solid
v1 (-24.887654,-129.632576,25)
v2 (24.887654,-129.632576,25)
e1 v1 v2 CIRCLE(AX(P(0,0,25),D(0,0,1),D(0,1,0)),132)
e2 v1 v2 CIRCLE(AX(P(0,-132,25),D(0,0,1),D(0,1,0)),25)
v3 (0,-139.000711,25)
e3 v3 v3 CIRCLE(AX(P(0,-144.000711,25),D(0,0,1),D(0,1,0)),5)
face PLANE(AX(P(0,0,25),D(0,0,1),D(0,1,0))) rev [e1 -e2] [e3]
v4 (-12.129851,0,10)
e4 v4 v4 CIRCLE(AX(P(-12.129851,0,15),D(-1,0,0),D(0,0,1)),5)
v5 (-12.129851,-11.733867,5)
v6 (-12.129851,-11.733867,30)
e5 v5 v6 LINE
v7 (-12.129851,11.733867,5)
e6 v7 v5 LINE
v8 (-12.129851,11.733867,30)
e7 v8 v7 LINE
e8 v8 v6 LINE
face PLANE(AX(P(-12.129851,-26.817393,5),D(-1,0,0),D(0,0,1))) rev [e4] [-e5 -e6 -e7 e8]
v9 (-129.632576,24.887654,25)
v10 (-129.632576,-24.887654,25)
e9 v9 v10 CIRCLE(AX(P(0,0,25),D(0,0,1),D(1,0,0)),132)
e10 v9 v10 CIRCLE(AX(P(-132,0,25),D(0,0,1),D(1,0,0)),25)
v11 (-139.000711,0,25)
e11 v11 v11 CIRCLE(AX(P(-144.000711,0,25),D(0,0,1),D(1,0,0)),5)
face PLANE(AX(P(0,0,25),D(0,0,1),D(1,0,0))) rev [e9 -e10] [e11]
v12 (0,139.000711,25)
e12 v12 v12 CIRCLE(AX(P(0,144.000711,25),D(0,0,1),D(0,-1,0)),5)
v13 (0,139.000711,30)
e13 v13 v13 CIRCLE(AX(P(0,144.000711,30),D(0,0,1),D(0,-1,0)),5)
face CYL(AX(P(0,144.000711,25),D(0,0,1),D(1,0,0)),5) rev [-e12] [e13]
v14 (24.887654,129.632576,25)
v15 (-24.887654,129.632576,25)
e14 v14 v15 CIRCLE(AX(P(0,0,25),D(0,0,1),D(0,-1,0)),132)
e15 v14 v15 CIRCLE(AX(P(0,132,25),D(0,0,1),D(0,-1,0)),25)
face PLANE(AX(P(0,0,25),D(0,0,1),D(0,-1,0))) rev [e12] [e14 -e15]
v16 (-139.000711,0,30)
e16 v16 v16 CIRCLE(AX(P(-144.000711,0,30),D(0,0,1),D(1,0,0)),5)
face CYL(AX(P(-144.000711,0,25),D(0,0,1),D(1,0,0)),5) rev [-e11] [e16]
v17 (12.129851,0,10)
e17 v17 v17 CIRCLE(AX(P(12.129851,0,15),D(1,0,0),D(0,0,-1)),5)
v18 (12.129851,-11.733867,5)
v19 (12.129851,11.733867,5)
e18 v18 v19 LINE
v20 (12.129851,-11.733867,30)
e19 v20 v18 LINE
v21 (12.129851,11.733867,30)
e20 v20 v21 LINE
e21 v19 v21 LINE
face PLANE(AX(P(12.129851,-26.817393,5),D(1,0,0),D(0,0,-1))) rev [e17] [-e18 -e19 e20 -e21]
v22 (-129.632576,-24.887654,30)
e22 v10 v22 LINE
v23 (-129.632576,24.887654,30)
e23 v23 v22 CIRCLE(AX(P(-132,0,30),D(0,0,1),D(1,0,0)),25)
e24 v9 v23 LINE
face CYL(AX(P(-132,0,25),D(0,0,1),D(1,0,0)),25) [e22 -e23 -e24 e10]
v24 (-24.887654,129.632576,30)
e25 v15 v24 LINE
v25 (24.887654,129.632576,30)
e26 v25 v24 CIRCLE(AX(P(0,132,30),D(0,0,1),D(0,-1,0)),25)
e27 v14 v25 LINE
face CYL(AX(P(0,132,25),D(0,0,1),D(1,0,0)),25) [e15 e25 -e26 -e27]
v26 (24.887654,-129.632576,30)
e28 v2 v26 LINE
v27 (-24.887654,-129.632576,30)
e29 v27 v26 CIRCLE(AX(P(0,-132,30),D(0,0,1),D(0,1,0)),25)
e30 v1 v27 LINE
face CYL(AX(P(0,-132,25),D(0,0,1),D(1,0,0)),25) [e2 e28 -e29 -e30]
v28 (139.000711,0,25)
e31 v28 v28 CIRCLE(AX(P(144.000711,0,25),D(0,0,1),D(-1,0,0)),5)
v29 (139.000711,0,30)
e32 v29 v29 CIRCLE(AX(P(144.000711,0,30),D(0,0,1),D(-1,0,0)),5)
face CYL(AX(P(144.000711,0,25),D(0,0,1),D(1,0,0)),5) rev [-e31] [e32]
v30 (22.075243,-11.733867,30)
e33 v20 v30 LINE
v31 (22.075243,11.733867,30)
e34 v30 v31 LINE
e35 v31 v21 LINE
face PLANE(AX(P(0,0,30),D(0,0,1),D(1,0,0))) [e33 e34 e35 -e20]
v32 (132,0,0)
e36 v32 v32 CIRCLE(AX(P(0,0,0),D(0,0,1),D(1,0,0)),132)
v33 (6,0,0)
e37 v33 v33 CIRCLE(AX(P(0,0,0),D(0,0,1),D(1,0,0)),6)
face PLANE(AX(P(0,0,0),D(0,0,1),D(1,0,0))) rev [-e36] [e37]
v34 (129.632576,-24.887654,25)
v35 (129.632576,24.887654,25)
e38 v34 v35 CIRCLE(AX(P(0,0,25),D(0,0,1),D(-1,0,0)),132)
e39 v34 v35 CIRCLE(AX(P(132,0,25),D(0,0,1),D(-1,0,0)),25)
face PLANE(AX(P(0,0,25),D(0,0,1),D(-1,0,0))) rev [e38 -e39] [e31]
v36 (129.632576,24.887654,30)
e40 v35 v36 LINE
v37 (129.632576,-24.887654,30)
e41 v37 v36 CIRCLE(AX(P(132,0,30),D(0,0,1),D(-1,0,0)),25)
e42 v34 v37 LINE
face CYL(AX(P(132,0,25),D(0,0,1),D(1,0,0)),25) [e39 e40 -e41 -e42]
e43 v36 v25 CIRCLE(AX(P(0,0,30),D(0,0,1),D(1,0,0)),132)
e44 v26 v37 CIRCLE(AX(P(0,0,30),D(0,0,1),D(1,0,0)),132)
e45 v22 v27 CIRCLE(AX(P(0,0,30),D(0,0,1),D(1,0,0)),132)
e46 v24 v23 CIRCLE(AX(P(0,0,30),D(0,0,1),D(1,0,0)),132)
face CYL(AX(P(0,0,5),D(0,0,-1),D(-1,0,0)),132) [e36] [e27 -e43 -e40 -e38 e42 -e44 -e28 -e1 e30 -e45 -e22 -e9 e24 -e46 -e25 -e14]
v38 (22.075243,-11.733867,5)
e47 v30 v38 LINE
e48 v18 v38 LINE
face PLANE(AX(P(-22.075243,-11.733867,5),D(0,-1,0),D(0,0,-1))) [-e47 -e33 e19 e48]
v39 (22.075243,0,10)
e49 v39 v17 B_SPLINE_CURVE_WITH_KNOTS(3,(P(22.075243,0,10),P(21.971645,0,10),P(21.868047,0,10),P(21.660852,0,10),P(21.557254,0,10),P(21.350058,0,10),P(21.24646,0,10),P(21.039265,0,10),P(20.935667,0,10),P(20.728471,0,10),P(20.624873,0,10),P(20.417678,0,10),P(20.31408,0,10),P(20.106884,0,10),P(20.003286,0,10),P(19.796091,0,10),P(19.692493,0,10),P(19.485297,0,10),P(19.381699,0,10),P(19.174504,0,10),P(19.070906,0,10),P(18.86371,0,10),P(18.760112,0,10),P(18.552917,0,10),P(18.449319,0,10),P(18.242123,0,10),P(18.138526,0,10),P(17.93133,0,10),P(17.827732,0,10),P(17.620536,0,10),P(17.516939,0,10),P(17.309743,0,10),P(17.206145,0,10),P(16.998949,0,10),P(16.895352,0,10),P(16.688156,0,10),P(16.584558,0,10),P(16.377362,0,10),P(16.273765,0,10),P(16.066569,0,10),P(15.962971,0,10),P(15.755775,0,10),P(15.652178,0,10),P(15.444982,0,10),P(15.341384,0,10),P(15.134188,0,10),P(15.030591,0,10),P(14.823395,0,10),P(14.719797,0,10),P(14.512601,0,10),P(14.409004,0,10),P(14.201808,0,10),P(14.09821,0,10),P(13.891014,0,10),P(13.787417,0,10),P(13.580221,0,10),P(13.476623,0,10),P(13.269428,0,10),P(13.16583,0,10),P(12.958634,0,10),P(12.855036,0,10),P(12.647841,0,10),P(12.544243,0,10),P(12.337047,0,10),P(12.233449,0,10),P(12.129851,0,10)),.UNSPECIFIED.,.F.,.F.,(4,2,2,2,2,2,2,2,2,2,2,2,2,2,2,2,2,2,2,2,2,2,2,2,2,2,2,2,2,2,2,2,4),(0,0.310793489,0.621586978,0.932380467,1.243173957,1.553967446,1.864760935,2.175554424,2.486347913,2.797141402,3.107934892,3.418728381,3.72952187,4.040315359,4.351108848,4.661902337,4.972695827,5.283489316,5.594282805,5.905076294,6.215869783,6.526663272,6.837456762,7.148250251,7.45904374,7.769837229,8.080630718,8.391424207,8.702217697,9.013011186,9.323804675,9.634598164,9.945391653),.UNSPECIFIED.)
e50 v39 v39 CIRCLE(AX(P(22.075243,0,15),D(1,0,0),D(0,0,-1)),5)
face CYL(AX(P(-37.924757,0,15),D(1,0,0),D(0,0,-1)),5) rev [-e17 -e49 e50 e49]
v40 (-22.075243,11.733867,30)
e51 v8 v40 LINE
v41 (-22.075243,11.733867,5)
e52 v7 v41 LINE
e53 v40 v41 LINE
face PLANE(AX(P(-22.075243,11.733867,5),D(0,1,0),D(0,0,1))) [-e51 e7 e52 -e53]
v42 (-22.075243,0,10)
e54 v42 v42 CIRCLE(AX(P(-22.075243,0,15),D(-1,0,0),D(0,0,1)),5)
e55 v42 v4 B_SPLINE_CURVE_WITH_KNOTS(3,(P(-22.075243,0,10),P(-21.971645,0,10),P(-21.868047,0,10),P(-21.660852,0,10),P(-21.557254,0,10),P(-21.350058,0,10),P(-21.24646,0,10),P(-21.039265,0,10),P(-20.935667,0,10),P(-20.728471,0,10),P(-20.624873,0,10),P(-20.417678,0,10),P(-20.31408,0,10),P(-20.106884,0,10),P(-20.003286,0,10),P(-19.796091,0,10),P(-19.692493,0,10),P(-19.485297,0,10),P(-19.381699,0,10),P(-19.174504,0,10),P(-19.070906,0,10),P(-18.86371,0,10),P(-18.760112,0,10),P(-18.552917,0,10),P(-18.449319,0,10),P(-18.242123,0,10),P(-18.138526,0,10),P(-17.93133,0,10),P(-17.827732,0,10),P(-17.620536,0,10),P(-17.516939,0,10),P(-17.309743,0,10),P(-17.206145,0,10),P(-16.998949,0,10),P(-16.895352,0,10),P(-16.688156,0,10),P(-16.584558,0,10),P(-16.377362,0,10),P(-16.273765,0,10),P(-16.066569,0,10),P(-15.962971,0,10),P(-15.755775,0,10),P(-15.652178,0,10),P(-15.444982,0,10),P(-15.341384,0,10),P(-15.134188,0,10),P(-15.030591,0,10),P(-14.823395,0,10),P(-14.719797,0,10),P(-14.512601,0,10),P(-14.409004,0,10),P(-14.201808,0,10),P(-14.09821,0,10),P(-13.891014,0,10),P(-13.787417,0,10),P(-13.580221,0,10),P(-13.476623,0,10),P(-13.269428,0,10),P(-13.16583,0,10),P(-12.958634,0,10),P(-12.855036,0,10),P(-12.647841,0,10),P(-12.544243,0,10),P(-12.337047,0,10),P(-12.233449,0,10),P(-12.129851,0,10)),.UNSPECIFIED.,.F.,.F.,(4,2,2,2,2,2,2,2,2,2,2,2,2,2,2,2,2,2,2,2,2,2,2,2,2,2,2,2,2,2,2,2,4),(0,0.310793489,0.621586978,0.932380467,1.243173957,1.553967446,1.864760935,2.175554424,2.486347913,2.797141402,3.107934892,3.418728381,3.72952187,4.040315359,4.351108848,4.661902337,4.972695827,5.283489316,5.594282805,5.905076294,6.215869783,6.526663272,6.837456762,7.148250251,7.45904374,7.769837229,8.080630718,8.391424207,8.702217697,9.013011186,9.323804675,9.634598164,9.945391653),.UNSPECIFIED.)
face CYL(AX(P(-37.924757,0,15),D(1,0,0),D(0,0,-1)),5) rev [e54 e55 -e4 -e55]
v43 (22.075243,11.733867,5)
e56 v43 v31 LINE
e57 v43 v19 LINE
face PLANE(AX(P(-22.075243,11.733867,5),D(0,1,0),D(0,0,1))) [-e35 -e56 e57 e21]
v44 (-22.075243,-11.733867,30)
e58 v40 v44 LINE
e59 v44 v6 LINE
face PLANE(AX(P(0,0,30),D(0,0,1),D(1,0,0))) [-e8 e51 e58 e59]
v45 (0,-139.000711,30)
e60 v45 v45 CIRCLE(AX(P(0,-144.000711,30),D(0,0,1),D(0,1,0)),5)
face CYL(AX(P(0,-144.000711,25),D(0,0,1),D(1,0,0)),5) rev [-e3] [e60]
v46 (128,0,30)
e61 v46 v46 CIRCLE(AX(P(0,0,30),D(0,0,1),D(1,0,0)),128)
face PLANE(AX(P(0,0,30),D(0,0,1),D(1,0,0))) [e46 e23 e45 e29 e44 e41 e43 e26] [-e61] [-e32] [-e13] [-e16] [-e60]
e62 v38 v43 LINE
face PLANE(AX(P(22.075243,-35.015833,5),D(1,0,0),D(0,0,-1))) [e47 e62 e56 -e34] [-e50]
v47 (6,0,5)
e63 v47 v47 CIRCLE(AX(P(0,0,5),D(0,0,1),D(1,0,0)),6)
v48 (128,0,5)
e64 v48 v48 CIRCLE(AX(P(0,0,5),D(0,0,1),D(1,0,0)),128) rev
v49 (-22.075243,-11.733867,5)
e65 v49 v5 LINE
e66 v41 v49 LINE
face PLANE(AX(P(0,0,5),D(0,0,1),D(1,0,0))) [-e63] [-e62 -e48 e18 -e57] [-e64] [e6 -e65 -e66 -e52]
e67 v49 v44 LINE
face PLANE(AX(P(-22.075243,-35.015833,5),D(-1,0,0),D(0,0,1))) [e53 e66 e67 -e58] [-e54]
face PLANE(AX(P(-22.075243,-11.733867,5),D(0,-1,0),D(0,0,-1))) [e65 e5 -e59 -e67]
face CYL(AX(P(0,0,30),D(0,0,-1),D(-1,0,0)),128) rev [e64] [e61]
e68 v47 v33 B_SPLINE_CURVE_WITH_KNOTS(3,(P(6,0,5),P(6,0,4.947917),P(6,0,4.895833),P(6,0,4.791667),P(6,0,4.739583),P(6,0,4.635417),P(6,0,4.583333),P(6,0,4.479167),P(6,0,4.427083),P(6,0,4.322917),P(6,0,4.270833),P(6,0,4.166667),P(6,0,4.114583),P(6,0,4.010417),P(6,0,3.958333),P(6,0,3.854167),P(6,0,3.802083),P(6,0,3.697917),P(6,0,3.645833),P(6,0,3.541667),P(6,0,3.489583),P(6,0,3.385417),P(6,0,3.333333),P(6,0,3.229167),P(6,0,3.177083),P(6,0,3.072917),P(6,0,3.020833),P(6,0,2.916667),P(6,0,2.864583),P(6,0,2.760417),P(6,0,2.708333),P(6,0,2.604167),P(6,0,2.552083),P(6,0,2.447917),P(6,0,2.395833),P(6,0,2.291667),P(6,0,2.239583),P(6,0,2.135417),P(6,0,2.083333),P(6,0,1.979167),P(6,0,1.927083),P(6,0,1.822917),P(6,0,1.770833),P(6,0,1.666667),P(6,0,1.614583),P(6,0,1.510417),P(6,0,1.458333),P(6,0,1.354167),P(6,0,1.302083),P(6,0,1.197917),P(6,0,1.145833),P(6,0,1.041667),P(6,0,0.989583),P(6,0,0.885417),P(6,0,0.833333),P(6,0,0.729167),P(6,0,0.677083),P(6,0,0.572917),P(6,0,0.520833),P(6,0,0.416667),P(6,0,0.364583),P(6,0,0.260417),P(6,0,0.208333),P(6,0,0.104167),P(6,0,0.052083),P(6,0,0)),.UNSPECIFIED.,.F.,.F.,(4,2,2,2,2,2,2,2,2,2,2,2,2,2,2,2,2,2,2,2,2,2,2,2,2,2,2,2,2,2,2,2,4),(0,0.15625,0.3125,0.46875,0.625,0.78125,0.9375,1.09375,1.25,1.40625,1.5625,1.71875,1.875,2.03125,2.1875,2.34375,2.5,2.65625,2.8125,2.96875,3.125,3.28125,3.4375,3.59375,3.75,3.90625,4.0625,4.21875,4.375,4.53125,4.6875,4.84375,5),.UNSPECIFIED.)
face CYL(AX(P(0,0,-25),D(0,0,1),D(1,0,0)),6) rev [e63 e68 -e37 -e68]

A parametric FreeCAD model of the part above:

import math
import FreeCAD as App
import Part
import Sketcher
from FreeCAD import Vector


def add_polygon(sketch, points):
    """Adds a closed chain of lines whose ends are joined by coincident constraints."""
    first, n = sketch.GeometryCount, len(points)
    for a, b in zip(points, points[1:] + points[:1]):
        sketch.addGeometry(Part.LineSegment(App.Vector(*a, 0), App.Vector(*b, 0)), False)
    for i in range(n):
        sketch.addConstraint(Sketcher.Constraint("Coincident", first + i, 2, first + (i + 1) % n, 1))

doc = App.newDocument("Part")
params = doc.addObject("Spreadsheet::Sheet", "Params")
for row, (alias, value) in enumerate([
    ("sketch1_diameter", "264 mm"),
    ("pad1_length", "5 mm"),
    ("sketch2_diameter", "264 mm"),
    ("sketch2_diameter2", "256 mm"),
    ("pad2_length", "25 mm"),
    ("sketch3_diameter", "50 mm"),
    ("pad3_length", "25 mm"),
    ("pocket1_length", "25 mm"),
    ("pocket2_length", "25 mm"),
    ("pocket3_length", "25 mm"),
    ("sketch7_diameter", "10 mm"),
    ("pocket4_length", "60 mm"),
    ("sketch8_diameter", "12 mm"),
    ("pocket5_length", "60 mm"),
    ("sketch9_diameter", "10 mm"),
    ("sketch9_radius", "132 mm"),
    ("sketch9_radius2", "25 mm"),
    ("pad4_length", "5 mm"),
], start=1):
    params.set(f"A{row}", alias)
    params.set(f"B{row}", "=" + value)
    params.setAlias(f"B{row}", alias)

body = doc.addObject("PartDesign::Body", "Body")

# Sketch on XY plane
sketch1 = body.newObject("Sketcher::SketchObject", "Sketch")
sketch1.AttachmentSupport = (doc.getObject("XY_Plane"), [""])
sketch1.MapMode = "FlatFace"
sketch1.addGeometry(Part.Circle(Vector(0, 0, 0), Vector(0, 0, 1), 132), False)
sketch1.addConstraint(Sketcher.Constraint("Coincident", 0, 3, -1, 1))
sketch1.addConstraint(Sketcher.Constraint("Diameter", 0, 264.0))
sketch1.setExpression("Constraints[1]", "Params.sketch1_diameter")
pad1 = body.newObject("PartDesign::Pad", "Pad")
pad1.Profile = sketch1
pad1.setExpression("Length", "Params.pad1_length")

# Sketch on XY plane
sketch2 = body.newObject("Sketcher::SketchObject", "Sketch001")
sketch2.AttachmentSupport = (doc.getObject("XY_Plane"), [""])
sketch2.MapMode = "FlatFace"
sketch2.AttachmentOffset = App.Placement(Vector(0, 0, 5), App.Rotation())
sketch2.addGeometry(Part.Circle(Vector(0, 0, 0), Vector(0, 0, 1), 132), False)
sketch2.addGeometry(Part.Circle(Vector(0, 0, 0), Vector(0, 0, 1), 128), False)
sketch2.addConstraint(Sketcher.Constraint("Coincident", 0, 3, -1, 1))
sketch2.addConstraint(Sketcher.Constraint("Coincident", 1, 3, -1, 1))
sketch2.addConstraint(Sketcher.Constraint("Diameter", 0, 264.0))
sketch2.addConstraint(Sketcher.Constraint("Diameter", 1, 256.0))
sketch2.setExpression("Constraints[2]", "Params.sketch2_diameter")
sketch2.setExpression("Constraints[3]", "Params.sketch2_diameter2")
pad2 = body.newObject("PartDesign::Pad", "Pad001")
pad2.Profile = sketch2
pad2.setExpression("Length", "Params.pad2_length")

# Sketch on XY plane
sketch3 = body.newObject("Sketcher::SketchObject", "Sketch002")
sketch3.AttachmentSupport = (doc.getObject("XY_Plane"), [""])
sketch3.MapMode = "FlatFace"
sketch3.AttachmentOffset = App.Placement(Vector(0, 0, 5), App.Rotation())
sketch3.addGeometry(Part.Circle(Vector(0, 0, 0), Vector(0, 0, 1), 25), False)
sketch3.addConstraint(Sketcher.Constraint("Coincident", 0, 3, -1, 1))
sketch3.addConstraint(Sketcher.Constraint("Diameter", 0, 50.0))
sketch3.setExpression("Constraints[1]", "Params.sketch3_diameter")
pad3 = body.newObject("PartDesign::Pad", "Pad002")
pad3.Profile = sketch3
pad3.setExpression("Length", "Params.pad3_length")

# Sketch on XY plane
sketch4 = body.newObject("Sketcher::SketchObject", "Sketch003")
sketch4.AttachmentSupport = (doc.getObject("XY_Plane"), [""])
sketch4.MapMode = "FlatFace"
sketch4.AttachmentOffset = App.Placement(Vector(0, 0, 30), App.Rotation())
add_polygon(sketch4, [(-12, 27), (-12, -27), (12, -27), (12, 27)])  # lines 0-3
sketch4.addConstraint(Sketcher.Constraint("Vertical", 0))
sketch4.addConstraint(Sketcher.Constraint("Horizontal", 1))
sketch4.addConstraint(Sketcher.Constraint("Vertical", 2))
sketch4.addConstraint(Sketcher.Constraint("Horizontal", 3))
sketch4.addConstraint(Sketcher.Constraint("Symmetric", 0, 2, 2, 2, -1, 1))
sketch4.addConstraint(Sketcher.Constraint("DistanceX", 1, 1, 1, 2, 24.259703))
sketch4.addConstraint(Sketcher.Constraint("DistanceY", 0, 2, 0, 1, 53.634786))
pocket1 = body.newObject("PartDesign::Pocket", "Pocket")
pocket1.Profile = sketch4
pocket1.setExpression("Length", "Params.pocket1_length")

# Sketch on XY plane
sketch5 = body.newObject("Sketcher::SketchObject", "Sketch004")
sketch5.AttachmentSupport = (doc.getObject("XY_Plane"), [""])
sketch5.MapMode = "FlatFace"
sketch5.AttachmentOffset = App.Placement(Vector(0, 0, 30), App.Rotation())
add_polygon(sketch5, [(-27, 39), (-27, -39), (27, -39), (27, 39)])  # lines 0-3
add_polygon(sketch5, [(22, -35), (-22, -35), (-22, 35), (22, 35)])  # lines 4-7
sketch5.addConstraint(Sketcher.Constraint("Vertical", 0))
sketch5.addConstraint(Sketcher.Constraint("Horizontal", 1))
sketch5.addConstraint(Sketcher.Constraint("Vertical", 2))
sketch5.addConstraint(Sketcher.Constraint("Horizontal", 3))
sketch5.addConstraint(Sketcher.Constraint("Horizontal", 4))
sketch5.addConstraint(Sketcher.Constraint("Vertical", 5))
sketch5.addConstraint(Sketcher.Constraint("Horizontal", 6))
sketch5.addConstraint(Sketcher.Constraint("Vertical", 7))
sketch5.addConstraint(Sketcher.Constraint("Symmetric", 0, 2, 2, 2, -1, 1))
sketch5.addConstraint(Sketcher.Constraint("Symmetric", 4, 2, 6, 2, -1, 1))
sketch5.addConstraint(Sketcher.Constraint("DistanceY", 0, 2, 0, 1, 77.086572))
sketch5.addConstraint(Sketcher.Constraint("DistanceX", 1, 1, 1, 2, 53.321862))
sketch5.addConstraint(Sketcher.Constraint("DistanceX", 4, 2, 4, 1, 44.150486))
sketch5.addConstraint(Sketcher.Constraint("DistanceY", 5, 1, 5, 2, 70.031667))
pocket2 = body.newObject("PartDesign::Pocket", "Pocket001")
pocket2.Profile = sketch5
pocket2.setExpression("Length", "Params.pocket2_length")

# Sketch on XY plane
sketch6 = body.newObject("Sketcher::SketchObject", "Sketch005")
sketch6.AttachmentSupport = (doc.getObject("XY_Plane"), [""])
sketch6.MapMode = "FlatFace"
sketch6.AttachmentOffset = App.Placement(Vector(0, 0, 30), App.Rotation())
add_polygon(sketch6, [(-29, 23), (-29, -23), (29, -23), (29, 23)])  # lines 0-3
add_polygon(sketch6, [(22, -12), (-22, -12), (-22, 12), (22, 12)])  # lines 4-7
sketch6.addConstraint(Sketcher.Constraint("Vertical", 0))
sketch6.addConstraint(Sketcher.Constraint("Horizontal", 1))
sketch6.addConstraint(Sketcher.Constraint("Vertical", 2))
sketch6.addConstraint(Sketcher.Constraint("Horizontal", 3))
sketch6.addConstraint(Sketcher.Constraint("Horizontal", 4))
sketch6.addConstraint(Sketcher.Constraint("Vertical", 5))
sketch6.addConstraint(Sketcher.Constraint("Horizontal", 6))
sketch6.addConstraint(Sketcher.Constraint("Vertical", 7))
sketch6.addConstraint(Sketcher.Constraint("Symmetric", 0, 2, 2, 2, -1, 1))
sketch6.addConstraint(Sketcher.Constraint("Symmetric", 4, 2, 6, 2, -1, 1))
sketch6.addConstraint(Sketcher.Constraint("DistanceY", 0, 2, 0, 1, 46.822548))
sketch6.addConstraint(Sketcher.Constraint("DistanceX", 1, 1, 1, 2, 57.100496))
sketch6.addConstraint(Sketcher.Constraint("DistanceX", 4, 2, 4, 1, 44.150486))
sketch6.addConstraint(Sketcher.Constraint("DistanceY", 5, 1, 5, 2, 23.467735))
pocket3 = body.newObject("PartDesign::Pocket", "Pocket002")
pocket3.Profile = sketch6
pocket3.setExpression("Length", "Params.pocket3_length")

# Sketch on YZ plane
sketch7 = body.newObject("Sketcher::SketchObject", "Sketch006")
sketch7.AttachmentSupport = (doc.getObject("YZ_Plane"), [""])
sketch7.MapMode = "FlatFace"
sketch7.AttachmentOffset = App.Placement(Vector(0, 0, 22.075243), App.Rotation())
sketch7.addGeometry(Part.Circle(Vector(0, 15, 0), Vector(0, 0, 1), 5), False)
sketch7.addConstraint(Sketcher.Constraint("PointOnObject", 0, 3, -2))
sketch7.addConstraint(Sketcher.Constraint("Diameter", 0, 10.0))
sketch7.addConstraint(Sketcher.Constraint("DistanceY", -1, 1, 0, 3, 15.0))
sketch7.setExpression("Constraints[1]", "Params.sketch7_diameter")
pocket4 = body.newObject("PartDesign::Pocket", "Pocket003")
pocket4.Profile = sketch7
pocket4.setExpression("Length", "Params.pocket4_length")

# Sketch on XY plane
sketch8 = body.newObject("Sketcher::SketchObject", "Sketch007")
sketch8.AttachmentSupport = (doc.getObject("XY_Plane"), [""])
sketch8.MapMode = "FlatFace"
sketch8.AttachmentOffset = App.Placement(Vector(0, 0, 5), App.Rotation())
sketch8.addGeometry(Part.Circle(Vector(0, 0, 0), Vector(0, 0, 1), 6), False)
sketch8.addConstraint(Sketcher.Constraint("Coincident", 0, 3, -1, 1))
sketch8.addConstraint(Sketcher.Constraint("Diameter", 0, 12.0))
sketch8.setExpression("Constraints[1]", "Params.sketch8_diameter")
pocket5 = body.newObject("PartDesign::Pocket", "Pocket004")
pocket5.Profile = sketch8
pocket5.setExpression("Length", "Params.pocket5_length")
pocket5.Midplane = True

# Sketch on XY plane
sketch9 = body.newObject("Sketcher::SketchObject", "Sketch008")
sketch9.AttachmentSupport = (doc.getObject("XY_Plane"), [""])
sketch9.MapMode = "FlatFace"
sketch9.AttachmentOffset = App.Placement(Vector(0, 0, 25), App.Rotation())
sketch9.addGeometry(Part.ArcOfCircle(Part.Circle(Vector(0, 0, 0), Vector(0, 0, 1), 132), math.radians(169), math.radians(191)), False)
sketch9.addGeometry(Part.ArcOfCircle(Part.Circle(Vector(-132, 0, 0), Vector(0, 0, 1), 25), math.radians(85), math.radians(275)), False)
sketch9.addGeometry(Part.Circle(Vector(-144, 0, 0), Vector(0, 0, 1), 5), False)
sketch9.addConstraint(Sketcher.Constraint("Coincident", 0, 1, 1, 1))
sketch9.addConstraint(Sketcher.Constraint("Coincident", 1, 2, 0, 2))
sketch9.addConstraint(Sketcher.Constraint("Coincident", 0, 3, -1, 1))
sketch9.addConstraint(Sketcher.Constraint("PointOnObject", 1, 3, -1))
sketch9.addConstraint(Sketcher.Constraint("PointOnObject", 2, 3, -1))
sketch9.addConstraint(Sketcher.Constraint("Diameter", 2, 10.0))
sketch9.addConstraint(Sketcher.Constraint("Radius", 0, 132.0))
sketch9.addConstraint(Sketcher.Constraint("Radius", 1, 25.0))
sketch9.addConstraint(Sketcher.Constraint("DistanceX", 1, 3, -1, 1, 132.0))
sketch9.addConstraint(Sketcher.Constraint("DistanceX", 2, 3, -1, 1, 144.000711))
sketch9.setExpression("Constraints[5]", "Params.sketch9_diameter")
sketch9.setExpression("Constraints[6]", "Params.sketch9_radius")
sketch9.setExpression("Constraints[7]", "Params.sketch9_radius2")
pad4 = body.newObject("PartDesign::Pad", "Pad003")
pad4.Profile = sketch9
pad4.setExpression("Length", "Params.pad4_length")
doc.recompute()

polarpattern = body.newObject("PartDesign::PolarPattern", "PolarPattern")
polarpattern.Originals = [pad4]
polarpattern.Axis = (doc.getObject("Z_Axis"), [""])
polarpattern.Angle = 360
polarpattern.Occurrences = 4
body.Tip = polarpattern

doc.recompute()
